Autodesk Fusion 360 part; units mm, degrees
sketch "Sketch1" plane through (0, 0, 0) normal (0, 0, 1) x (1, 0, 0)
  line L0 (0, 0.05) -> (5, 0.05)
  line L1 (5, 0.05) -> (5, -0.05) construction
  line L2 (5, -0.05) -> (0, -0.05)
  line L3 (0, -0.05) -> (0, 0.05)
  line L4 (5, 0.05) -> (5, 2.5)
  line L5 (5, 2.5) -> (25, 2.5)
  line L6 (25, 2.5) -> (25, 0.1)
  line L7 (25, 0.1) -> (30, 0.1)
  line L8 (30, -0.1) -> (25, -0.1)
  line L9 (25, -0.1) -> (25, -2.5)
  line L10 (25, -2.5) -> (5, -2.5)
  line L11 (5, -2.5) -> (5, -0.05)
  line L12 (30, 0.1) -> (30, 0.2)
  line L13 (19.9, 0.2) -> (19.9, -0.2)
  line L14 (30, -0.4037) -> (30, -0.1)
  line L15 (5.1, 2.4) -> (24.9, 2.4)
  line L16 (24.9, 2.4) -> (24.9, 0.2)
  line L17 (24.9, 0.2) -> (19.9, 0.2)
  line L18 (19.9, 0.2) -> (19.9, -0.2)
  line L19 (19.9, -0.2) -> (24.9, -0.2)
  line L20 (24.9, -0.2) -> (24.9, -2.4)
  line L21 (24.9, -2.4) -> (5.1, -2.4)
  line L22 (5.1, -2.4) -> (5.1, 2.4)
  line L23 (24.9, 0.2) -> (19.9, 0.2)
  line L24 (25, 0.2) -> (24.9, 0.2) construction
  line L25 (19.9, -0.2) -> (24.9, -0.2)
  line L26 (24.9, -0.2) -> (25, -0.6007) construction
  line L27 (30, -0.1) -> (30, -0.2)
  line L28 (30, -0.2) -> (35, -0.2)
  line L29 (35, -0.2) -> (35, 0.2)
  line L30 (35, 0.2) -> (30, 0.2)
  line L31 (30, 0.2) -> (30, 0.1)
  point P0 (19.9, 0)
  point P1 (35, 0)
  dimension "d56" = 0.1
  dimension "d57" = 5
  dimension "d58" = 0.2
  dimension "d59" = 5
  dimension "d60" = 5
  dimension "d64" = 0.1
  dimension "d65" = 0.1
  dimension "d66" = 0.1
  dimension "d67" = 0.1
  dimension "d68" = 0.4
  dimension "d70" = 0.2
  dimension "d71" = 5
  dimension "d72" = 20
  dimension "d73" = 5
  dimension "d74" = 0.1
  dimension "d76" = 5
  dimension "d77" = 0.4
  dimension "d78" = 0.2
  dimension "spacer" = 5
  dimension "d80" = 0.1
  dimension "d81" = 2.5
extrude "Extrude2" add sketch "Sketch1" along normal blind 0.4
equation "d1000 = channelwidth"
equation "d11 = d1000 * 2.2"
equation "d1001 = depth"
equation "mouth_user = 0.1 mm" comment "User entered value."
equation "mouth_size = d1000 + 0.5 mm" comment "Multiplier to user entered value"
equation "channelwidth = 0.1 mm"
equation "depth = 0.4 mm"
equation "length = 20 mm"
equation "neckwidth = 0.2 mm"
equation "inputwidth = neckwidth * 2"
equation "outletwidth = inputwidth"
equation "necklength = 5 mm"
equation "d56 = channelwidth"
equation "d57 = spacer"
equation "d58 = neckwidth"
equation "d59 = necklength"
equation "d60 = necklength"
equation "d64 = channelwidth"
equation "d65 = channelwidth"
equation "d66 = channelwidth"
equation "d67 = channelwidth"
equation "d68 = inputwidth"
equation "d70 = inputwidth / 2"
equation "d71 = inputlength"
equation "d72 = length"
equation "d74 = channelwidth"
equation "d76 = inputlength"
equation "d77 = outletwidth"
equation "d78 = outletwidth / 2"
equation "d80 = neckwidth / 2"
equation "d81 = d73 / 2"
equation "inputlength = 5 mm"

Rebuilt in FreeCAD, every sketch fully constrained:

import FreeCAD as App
import Part
import Sketcher

V = App.Vector

doc = App.newDocument("Part")
body = doc.addObject("PartDesign::Body", "Body")

# Sketch on XY plane
sketch1 = body.newObject("Sketcher::SketchObject", "Sketch")
sketch1.AttachmentSupport = (doc.getObject("XY_Plane"), [""])
sketch1.MapMode = "FlatFace"
sketch1.addGeometry(Part.LineSegment(V(5, 0.05, 0), V(0, 0.05, 0)), False)
sketch1.addGeometry(Part.LineSegment(V(0, 0.05, 0), V(0, -0.05, 0)), False)
sketch1.addGeometry(Part.LineSegment(V(0, -0.05, 0), V(5, -0.05, 0)), False)
sketch1.addGeometry(Part.LineSegment(V(5, -0.05, 0), V(5, -2.5, 0)), False)
sketch1.addGeometry(Part.LineSegment(V(5, -2.5, 0), V(25, -2.5, 0)), False)
sketch1.addGeometry(Part.LineSegment(V(25, -2.5, 0), V(25, -0.1, 0)), False)
sketch1.addGeometry(Part.LineSegment(V(25, -0.1, 0), V(30, -0.1, 0)), False)
sketch1.addGeometry(Part.LineSegment(V(30, -0.1, 0), V(30, -0.2, 0)), False)
sketch1.addGeometry(Part.LineSegment(V(30, -0.2, 0), V(35, -0.2, 0)), False)
sketch1.addGeometry(Part.LineSegment(V(35, -0.2, 0), V(35, 0.2, 0)), False)
sketch1.addGeometry(Part.LineSegment(V(35, 0.2, 0), V(30, 0.2, 0)), False)
sketch1.addGeometry(Part.LineSegment(V(30, 0.2, 0), V(30, 0.1, 0)), False)
sketch1.addGeometry(Part.LineSegment(V(30, 0.1, 0), V(25, 0.1, 0)), False)
sketch1.addGeometry(Part.LineSegment(V(25, 0.1, 0), V(25, 2.5, 0)), False)
sketch1.addGeometry(Part.LineSegment(V(25, 2.5, 0), V(5, 2.5, 0)), False)
sketch1.addGeometry(Part.LineSegment(V(5, 2.5, 0), V(5, 0.05, 0)), False)
sketch1.addGeometry(Part.LineSegment(V(24.9, 0.2, 0), V(19.9, 0.2, 0)), False)
sketch1.addGeometry(Part.LineSegment(V(19.9, 0.2, 0), V(19.9, -0.2, 0)), False)
sketch1.addGeometry(Part.LineSegment(V(19.9, -0.2, 0), V(24.9, -0.2, 0)), False)
sketch1.addGeometry(Part.LineSegment(V(24.9, -0.2, 0), V(24.9, -2.4, 0)), False)
sketch1.addGeometry(Part.LineSegment(V(24.9, -2.4, 0), V(5.1, -2.4, 0)), False)
sketch1.addGeometry(Part.LineSegment(V(5.1, -2.4, 0), V(5.1, 2.4, 0)), False)
sketch1.addGeometry(Part.LineSegment(V(5.1, 2.4, 0), V(24.9, 2.4, 0)), False)
sketch1.addGeometry(Part.LineSegment(V(24.9, 2.4, 0), V(24.9, 0.2, 0)), False)
sketch1.addConstraint(Sketcher.Constraint("Coincident", 0, 2, 1, 1))
sketch1.addConstraint(Sketcher.Constraint("Coincident", 1, 2, 2, 1))
sketch1.addConstraint(Sketcher.Constraint("Coincident", 2, 2, 3, 1))
sketch1.addConstraint(Sketcher.Constraint("Coincident", 3, 2, 4, 1))
sketch1.addConstraint(Sketcher.Constraint("Coincident", 4, 2, 5, 1))
sketch1.addConstraint(Sketcher.Constraint("Coincident", 5, 2, 6, 1))
sketch1.addConstraint(Sketcher.Constraint("Coincident", 6, 2, 7, 1))
sketch1.addConstraint(Sketcher.Constraint("Coincident", 7, 2, 8, 1))
sketch1.addConstraint(Sketcher.Constraint("Coincident", 8, 2, 9, 1))
sketch1.addConstraint(Sketcher.Constraint("Coincident", 9, 2, 10, 1))
sketch1.addConstraint(Sketcher.Constraint("Coincident", 10, 2, 11, 1))
sketch1.addConstraint(Sketcher.Constraint("Coincident", 11, 2, 12, 1))
sketch1.addConstraint(Sketcher.Constraint("Coincident", 12, 2, 13, 1))
sketch1.addConstraint(Sketcher.Constraint("Coincident", 13, 2, 14, 1))
sketch1.addConstraint(Sketcher.Constraint("Coincident", 14, 2, 15, 1))
sketch1.addConstraint(Sketcher.Constraint("Coincident", 15, 2, 0, 1))
sketch1.addConstraint(Sketcher.Constraint("Coincident", 16, 2, 17, 1))
sketch1.addConstraint(Sketcher.Constraint("Coincident", 17, 2, 18, 1))
sketch1.addConstraint(Sketcher.Constraint("Coincident", 18, 2, 19, 1))
sketch1.addConstraint(Sketcher.Constraint("Coincident", 19, 2, 20, 1))
sketch1.addConstraint(Sketcher.Constraint("Coincident", 20, 2, 21, 1))
sketch1.addConstraint(Sketcher.Constraint("Coincident", 21, 2, 22, 1))
sketch1.addConstraint(Sketcher.Constraint("Coincident", 22, 2, 23, 1))
sketch1.addConstraint(Sketcher.Constraint("Coincident", 23, 2, 16, 1))
sketch1.addConstraint(Sketcher.Constraint("Horizontal", 0))
sketch1.addConstraint(Sketcher.Constraint("Vertical", 1))
sketch1.addConstraint(Sketcher.Constraint("Horizontal", 2))
sketch1.addConstraint(Sketcher.Constraint("Vertical", 3))
sketch1.addConstraint(Sketcher.Constraint("Horizontal", 4))
sketch1.addConstraint(Sketcher.Constraint("Vertical", 5))
sketch1.addConstraint(Sketcher.Constraint("Horizontal", 6))
sketch1.addConstraint(Sketcher.Constraint("Vertical", 7))
sketch1.addConstraint(Sketcher.Constraint("Horizontal", 8))
sketch1.addConstraint(Sketcher.Constraint("Vertical", 9))
sketch1.addConstraint(Sketcher.Constraint("Horizontal", 10))
sketch1.addConstraint(Sketcher.Constraint("Vertical", 11))
sketch1.addConstraint(Sketcher.Constraint("Horizontal", 12))
sketch1.addConstraint(Sketcher.Constraint("Vertical", 13))
sketch1.addConstraint(Sketcher.Constraint("Horizontal", 14))
sketch1.addConstraint(Sketcher.Constraint("Vertical", 15))
sketch1.addConstraint(Sketcher.Constraint("Horizontal", 16))
sketch1.addConstraint(Sketcher.Constraint("Vertical", 17))
sketch1.addConstraint(Sketcher.Constraint("Horizontal", 18))
sketch1.addConstraint(Sketcher.Constraint("Vertical", 19))
sketch1.addConstraint(Sketcher.Constraint("Horizontal", 20))
sketch1.addConstraint(Sketcher.Constraint("Vertical", 21))
sketch1.addConstraint(Sketcher.Constraint("Horizontal", 22))
sketch1.addConstraint(Sketcher.Constraint("Vertical", 23))
sketch1.addConstraint(Sketcher.Constraint("Symmetric", 0, 2, 1, 2, -1, 1))
sketch1.addConstraint(Sketcher.Constraint("Symmetric", 7, 2, 10, 2, -1))
sketch1.addConstraint(Sketcher.Constraint("Symmetric", 5, 2, 12, 2, -1))
sketch1.addConstraint(Sketcher.Constraint("Symmetric", 3, 2, 14, 2, -1))
sketch1.addConstraint(Sketcher.Constraint("Symmetric", 19, 2, 22, 2, -1))
sketch1.addConstraint(Sketcher.Constraint("Horizontal", 10, 2, 16, 2))
sketch1.addConstraint(Sketcher.Constraint("Horizontal", 8, 2, 17, 2))
sketch1.addConstraint(Sketcher.Constraint("Equal", 2, 6))
sketch1.addConstraint(Sketcher.Constraint("Equal", 6, 8))
sketch1.addConstraint(Sketcher.Constraint("Equal", 12, 16))
sketch1.addConstraint(Sketcher.Constraint("Equal", 1, 7))
sketch1.addConstraint(Sketcher.Constraint("DistanceX", 0, 2, 0, 1, 5.0))
sketch1.addConstraint(Sketcher.Constraint("DistanceX", 4, 1, 4, 2, 20.0))
sketch1.addConstraint(Sketcher.Constraint("DistanceY", 1, 2, 1, 1, 0.1))
sketch1.addConstraint(Sketcher.Constraint("DistanceY", 9, 1, 9, 2, 0.4))
sketch1.addConstraint(Sketcher.Constraint("DistanceY", 4, 2, 13, 2, 5.0))
sketch1.addConstraint(Sketcher.Constraint("DistanceX", 18, 2, 5, 2, 0.1))
sketch1.addConstraint(Sketcher.Constraint("DistanceY", 4, 2, 19, 2, 0.1))
sketch1.addConstraint(Sketcher.Constraint("DistanceX", 3, 2, 20, 2, 0.1))
pad1 = body.newObject("PartDesign::Pad", "Pad")
pad1.Profile = sketch1
pad1.Length = 0.4

doc.recompute()
